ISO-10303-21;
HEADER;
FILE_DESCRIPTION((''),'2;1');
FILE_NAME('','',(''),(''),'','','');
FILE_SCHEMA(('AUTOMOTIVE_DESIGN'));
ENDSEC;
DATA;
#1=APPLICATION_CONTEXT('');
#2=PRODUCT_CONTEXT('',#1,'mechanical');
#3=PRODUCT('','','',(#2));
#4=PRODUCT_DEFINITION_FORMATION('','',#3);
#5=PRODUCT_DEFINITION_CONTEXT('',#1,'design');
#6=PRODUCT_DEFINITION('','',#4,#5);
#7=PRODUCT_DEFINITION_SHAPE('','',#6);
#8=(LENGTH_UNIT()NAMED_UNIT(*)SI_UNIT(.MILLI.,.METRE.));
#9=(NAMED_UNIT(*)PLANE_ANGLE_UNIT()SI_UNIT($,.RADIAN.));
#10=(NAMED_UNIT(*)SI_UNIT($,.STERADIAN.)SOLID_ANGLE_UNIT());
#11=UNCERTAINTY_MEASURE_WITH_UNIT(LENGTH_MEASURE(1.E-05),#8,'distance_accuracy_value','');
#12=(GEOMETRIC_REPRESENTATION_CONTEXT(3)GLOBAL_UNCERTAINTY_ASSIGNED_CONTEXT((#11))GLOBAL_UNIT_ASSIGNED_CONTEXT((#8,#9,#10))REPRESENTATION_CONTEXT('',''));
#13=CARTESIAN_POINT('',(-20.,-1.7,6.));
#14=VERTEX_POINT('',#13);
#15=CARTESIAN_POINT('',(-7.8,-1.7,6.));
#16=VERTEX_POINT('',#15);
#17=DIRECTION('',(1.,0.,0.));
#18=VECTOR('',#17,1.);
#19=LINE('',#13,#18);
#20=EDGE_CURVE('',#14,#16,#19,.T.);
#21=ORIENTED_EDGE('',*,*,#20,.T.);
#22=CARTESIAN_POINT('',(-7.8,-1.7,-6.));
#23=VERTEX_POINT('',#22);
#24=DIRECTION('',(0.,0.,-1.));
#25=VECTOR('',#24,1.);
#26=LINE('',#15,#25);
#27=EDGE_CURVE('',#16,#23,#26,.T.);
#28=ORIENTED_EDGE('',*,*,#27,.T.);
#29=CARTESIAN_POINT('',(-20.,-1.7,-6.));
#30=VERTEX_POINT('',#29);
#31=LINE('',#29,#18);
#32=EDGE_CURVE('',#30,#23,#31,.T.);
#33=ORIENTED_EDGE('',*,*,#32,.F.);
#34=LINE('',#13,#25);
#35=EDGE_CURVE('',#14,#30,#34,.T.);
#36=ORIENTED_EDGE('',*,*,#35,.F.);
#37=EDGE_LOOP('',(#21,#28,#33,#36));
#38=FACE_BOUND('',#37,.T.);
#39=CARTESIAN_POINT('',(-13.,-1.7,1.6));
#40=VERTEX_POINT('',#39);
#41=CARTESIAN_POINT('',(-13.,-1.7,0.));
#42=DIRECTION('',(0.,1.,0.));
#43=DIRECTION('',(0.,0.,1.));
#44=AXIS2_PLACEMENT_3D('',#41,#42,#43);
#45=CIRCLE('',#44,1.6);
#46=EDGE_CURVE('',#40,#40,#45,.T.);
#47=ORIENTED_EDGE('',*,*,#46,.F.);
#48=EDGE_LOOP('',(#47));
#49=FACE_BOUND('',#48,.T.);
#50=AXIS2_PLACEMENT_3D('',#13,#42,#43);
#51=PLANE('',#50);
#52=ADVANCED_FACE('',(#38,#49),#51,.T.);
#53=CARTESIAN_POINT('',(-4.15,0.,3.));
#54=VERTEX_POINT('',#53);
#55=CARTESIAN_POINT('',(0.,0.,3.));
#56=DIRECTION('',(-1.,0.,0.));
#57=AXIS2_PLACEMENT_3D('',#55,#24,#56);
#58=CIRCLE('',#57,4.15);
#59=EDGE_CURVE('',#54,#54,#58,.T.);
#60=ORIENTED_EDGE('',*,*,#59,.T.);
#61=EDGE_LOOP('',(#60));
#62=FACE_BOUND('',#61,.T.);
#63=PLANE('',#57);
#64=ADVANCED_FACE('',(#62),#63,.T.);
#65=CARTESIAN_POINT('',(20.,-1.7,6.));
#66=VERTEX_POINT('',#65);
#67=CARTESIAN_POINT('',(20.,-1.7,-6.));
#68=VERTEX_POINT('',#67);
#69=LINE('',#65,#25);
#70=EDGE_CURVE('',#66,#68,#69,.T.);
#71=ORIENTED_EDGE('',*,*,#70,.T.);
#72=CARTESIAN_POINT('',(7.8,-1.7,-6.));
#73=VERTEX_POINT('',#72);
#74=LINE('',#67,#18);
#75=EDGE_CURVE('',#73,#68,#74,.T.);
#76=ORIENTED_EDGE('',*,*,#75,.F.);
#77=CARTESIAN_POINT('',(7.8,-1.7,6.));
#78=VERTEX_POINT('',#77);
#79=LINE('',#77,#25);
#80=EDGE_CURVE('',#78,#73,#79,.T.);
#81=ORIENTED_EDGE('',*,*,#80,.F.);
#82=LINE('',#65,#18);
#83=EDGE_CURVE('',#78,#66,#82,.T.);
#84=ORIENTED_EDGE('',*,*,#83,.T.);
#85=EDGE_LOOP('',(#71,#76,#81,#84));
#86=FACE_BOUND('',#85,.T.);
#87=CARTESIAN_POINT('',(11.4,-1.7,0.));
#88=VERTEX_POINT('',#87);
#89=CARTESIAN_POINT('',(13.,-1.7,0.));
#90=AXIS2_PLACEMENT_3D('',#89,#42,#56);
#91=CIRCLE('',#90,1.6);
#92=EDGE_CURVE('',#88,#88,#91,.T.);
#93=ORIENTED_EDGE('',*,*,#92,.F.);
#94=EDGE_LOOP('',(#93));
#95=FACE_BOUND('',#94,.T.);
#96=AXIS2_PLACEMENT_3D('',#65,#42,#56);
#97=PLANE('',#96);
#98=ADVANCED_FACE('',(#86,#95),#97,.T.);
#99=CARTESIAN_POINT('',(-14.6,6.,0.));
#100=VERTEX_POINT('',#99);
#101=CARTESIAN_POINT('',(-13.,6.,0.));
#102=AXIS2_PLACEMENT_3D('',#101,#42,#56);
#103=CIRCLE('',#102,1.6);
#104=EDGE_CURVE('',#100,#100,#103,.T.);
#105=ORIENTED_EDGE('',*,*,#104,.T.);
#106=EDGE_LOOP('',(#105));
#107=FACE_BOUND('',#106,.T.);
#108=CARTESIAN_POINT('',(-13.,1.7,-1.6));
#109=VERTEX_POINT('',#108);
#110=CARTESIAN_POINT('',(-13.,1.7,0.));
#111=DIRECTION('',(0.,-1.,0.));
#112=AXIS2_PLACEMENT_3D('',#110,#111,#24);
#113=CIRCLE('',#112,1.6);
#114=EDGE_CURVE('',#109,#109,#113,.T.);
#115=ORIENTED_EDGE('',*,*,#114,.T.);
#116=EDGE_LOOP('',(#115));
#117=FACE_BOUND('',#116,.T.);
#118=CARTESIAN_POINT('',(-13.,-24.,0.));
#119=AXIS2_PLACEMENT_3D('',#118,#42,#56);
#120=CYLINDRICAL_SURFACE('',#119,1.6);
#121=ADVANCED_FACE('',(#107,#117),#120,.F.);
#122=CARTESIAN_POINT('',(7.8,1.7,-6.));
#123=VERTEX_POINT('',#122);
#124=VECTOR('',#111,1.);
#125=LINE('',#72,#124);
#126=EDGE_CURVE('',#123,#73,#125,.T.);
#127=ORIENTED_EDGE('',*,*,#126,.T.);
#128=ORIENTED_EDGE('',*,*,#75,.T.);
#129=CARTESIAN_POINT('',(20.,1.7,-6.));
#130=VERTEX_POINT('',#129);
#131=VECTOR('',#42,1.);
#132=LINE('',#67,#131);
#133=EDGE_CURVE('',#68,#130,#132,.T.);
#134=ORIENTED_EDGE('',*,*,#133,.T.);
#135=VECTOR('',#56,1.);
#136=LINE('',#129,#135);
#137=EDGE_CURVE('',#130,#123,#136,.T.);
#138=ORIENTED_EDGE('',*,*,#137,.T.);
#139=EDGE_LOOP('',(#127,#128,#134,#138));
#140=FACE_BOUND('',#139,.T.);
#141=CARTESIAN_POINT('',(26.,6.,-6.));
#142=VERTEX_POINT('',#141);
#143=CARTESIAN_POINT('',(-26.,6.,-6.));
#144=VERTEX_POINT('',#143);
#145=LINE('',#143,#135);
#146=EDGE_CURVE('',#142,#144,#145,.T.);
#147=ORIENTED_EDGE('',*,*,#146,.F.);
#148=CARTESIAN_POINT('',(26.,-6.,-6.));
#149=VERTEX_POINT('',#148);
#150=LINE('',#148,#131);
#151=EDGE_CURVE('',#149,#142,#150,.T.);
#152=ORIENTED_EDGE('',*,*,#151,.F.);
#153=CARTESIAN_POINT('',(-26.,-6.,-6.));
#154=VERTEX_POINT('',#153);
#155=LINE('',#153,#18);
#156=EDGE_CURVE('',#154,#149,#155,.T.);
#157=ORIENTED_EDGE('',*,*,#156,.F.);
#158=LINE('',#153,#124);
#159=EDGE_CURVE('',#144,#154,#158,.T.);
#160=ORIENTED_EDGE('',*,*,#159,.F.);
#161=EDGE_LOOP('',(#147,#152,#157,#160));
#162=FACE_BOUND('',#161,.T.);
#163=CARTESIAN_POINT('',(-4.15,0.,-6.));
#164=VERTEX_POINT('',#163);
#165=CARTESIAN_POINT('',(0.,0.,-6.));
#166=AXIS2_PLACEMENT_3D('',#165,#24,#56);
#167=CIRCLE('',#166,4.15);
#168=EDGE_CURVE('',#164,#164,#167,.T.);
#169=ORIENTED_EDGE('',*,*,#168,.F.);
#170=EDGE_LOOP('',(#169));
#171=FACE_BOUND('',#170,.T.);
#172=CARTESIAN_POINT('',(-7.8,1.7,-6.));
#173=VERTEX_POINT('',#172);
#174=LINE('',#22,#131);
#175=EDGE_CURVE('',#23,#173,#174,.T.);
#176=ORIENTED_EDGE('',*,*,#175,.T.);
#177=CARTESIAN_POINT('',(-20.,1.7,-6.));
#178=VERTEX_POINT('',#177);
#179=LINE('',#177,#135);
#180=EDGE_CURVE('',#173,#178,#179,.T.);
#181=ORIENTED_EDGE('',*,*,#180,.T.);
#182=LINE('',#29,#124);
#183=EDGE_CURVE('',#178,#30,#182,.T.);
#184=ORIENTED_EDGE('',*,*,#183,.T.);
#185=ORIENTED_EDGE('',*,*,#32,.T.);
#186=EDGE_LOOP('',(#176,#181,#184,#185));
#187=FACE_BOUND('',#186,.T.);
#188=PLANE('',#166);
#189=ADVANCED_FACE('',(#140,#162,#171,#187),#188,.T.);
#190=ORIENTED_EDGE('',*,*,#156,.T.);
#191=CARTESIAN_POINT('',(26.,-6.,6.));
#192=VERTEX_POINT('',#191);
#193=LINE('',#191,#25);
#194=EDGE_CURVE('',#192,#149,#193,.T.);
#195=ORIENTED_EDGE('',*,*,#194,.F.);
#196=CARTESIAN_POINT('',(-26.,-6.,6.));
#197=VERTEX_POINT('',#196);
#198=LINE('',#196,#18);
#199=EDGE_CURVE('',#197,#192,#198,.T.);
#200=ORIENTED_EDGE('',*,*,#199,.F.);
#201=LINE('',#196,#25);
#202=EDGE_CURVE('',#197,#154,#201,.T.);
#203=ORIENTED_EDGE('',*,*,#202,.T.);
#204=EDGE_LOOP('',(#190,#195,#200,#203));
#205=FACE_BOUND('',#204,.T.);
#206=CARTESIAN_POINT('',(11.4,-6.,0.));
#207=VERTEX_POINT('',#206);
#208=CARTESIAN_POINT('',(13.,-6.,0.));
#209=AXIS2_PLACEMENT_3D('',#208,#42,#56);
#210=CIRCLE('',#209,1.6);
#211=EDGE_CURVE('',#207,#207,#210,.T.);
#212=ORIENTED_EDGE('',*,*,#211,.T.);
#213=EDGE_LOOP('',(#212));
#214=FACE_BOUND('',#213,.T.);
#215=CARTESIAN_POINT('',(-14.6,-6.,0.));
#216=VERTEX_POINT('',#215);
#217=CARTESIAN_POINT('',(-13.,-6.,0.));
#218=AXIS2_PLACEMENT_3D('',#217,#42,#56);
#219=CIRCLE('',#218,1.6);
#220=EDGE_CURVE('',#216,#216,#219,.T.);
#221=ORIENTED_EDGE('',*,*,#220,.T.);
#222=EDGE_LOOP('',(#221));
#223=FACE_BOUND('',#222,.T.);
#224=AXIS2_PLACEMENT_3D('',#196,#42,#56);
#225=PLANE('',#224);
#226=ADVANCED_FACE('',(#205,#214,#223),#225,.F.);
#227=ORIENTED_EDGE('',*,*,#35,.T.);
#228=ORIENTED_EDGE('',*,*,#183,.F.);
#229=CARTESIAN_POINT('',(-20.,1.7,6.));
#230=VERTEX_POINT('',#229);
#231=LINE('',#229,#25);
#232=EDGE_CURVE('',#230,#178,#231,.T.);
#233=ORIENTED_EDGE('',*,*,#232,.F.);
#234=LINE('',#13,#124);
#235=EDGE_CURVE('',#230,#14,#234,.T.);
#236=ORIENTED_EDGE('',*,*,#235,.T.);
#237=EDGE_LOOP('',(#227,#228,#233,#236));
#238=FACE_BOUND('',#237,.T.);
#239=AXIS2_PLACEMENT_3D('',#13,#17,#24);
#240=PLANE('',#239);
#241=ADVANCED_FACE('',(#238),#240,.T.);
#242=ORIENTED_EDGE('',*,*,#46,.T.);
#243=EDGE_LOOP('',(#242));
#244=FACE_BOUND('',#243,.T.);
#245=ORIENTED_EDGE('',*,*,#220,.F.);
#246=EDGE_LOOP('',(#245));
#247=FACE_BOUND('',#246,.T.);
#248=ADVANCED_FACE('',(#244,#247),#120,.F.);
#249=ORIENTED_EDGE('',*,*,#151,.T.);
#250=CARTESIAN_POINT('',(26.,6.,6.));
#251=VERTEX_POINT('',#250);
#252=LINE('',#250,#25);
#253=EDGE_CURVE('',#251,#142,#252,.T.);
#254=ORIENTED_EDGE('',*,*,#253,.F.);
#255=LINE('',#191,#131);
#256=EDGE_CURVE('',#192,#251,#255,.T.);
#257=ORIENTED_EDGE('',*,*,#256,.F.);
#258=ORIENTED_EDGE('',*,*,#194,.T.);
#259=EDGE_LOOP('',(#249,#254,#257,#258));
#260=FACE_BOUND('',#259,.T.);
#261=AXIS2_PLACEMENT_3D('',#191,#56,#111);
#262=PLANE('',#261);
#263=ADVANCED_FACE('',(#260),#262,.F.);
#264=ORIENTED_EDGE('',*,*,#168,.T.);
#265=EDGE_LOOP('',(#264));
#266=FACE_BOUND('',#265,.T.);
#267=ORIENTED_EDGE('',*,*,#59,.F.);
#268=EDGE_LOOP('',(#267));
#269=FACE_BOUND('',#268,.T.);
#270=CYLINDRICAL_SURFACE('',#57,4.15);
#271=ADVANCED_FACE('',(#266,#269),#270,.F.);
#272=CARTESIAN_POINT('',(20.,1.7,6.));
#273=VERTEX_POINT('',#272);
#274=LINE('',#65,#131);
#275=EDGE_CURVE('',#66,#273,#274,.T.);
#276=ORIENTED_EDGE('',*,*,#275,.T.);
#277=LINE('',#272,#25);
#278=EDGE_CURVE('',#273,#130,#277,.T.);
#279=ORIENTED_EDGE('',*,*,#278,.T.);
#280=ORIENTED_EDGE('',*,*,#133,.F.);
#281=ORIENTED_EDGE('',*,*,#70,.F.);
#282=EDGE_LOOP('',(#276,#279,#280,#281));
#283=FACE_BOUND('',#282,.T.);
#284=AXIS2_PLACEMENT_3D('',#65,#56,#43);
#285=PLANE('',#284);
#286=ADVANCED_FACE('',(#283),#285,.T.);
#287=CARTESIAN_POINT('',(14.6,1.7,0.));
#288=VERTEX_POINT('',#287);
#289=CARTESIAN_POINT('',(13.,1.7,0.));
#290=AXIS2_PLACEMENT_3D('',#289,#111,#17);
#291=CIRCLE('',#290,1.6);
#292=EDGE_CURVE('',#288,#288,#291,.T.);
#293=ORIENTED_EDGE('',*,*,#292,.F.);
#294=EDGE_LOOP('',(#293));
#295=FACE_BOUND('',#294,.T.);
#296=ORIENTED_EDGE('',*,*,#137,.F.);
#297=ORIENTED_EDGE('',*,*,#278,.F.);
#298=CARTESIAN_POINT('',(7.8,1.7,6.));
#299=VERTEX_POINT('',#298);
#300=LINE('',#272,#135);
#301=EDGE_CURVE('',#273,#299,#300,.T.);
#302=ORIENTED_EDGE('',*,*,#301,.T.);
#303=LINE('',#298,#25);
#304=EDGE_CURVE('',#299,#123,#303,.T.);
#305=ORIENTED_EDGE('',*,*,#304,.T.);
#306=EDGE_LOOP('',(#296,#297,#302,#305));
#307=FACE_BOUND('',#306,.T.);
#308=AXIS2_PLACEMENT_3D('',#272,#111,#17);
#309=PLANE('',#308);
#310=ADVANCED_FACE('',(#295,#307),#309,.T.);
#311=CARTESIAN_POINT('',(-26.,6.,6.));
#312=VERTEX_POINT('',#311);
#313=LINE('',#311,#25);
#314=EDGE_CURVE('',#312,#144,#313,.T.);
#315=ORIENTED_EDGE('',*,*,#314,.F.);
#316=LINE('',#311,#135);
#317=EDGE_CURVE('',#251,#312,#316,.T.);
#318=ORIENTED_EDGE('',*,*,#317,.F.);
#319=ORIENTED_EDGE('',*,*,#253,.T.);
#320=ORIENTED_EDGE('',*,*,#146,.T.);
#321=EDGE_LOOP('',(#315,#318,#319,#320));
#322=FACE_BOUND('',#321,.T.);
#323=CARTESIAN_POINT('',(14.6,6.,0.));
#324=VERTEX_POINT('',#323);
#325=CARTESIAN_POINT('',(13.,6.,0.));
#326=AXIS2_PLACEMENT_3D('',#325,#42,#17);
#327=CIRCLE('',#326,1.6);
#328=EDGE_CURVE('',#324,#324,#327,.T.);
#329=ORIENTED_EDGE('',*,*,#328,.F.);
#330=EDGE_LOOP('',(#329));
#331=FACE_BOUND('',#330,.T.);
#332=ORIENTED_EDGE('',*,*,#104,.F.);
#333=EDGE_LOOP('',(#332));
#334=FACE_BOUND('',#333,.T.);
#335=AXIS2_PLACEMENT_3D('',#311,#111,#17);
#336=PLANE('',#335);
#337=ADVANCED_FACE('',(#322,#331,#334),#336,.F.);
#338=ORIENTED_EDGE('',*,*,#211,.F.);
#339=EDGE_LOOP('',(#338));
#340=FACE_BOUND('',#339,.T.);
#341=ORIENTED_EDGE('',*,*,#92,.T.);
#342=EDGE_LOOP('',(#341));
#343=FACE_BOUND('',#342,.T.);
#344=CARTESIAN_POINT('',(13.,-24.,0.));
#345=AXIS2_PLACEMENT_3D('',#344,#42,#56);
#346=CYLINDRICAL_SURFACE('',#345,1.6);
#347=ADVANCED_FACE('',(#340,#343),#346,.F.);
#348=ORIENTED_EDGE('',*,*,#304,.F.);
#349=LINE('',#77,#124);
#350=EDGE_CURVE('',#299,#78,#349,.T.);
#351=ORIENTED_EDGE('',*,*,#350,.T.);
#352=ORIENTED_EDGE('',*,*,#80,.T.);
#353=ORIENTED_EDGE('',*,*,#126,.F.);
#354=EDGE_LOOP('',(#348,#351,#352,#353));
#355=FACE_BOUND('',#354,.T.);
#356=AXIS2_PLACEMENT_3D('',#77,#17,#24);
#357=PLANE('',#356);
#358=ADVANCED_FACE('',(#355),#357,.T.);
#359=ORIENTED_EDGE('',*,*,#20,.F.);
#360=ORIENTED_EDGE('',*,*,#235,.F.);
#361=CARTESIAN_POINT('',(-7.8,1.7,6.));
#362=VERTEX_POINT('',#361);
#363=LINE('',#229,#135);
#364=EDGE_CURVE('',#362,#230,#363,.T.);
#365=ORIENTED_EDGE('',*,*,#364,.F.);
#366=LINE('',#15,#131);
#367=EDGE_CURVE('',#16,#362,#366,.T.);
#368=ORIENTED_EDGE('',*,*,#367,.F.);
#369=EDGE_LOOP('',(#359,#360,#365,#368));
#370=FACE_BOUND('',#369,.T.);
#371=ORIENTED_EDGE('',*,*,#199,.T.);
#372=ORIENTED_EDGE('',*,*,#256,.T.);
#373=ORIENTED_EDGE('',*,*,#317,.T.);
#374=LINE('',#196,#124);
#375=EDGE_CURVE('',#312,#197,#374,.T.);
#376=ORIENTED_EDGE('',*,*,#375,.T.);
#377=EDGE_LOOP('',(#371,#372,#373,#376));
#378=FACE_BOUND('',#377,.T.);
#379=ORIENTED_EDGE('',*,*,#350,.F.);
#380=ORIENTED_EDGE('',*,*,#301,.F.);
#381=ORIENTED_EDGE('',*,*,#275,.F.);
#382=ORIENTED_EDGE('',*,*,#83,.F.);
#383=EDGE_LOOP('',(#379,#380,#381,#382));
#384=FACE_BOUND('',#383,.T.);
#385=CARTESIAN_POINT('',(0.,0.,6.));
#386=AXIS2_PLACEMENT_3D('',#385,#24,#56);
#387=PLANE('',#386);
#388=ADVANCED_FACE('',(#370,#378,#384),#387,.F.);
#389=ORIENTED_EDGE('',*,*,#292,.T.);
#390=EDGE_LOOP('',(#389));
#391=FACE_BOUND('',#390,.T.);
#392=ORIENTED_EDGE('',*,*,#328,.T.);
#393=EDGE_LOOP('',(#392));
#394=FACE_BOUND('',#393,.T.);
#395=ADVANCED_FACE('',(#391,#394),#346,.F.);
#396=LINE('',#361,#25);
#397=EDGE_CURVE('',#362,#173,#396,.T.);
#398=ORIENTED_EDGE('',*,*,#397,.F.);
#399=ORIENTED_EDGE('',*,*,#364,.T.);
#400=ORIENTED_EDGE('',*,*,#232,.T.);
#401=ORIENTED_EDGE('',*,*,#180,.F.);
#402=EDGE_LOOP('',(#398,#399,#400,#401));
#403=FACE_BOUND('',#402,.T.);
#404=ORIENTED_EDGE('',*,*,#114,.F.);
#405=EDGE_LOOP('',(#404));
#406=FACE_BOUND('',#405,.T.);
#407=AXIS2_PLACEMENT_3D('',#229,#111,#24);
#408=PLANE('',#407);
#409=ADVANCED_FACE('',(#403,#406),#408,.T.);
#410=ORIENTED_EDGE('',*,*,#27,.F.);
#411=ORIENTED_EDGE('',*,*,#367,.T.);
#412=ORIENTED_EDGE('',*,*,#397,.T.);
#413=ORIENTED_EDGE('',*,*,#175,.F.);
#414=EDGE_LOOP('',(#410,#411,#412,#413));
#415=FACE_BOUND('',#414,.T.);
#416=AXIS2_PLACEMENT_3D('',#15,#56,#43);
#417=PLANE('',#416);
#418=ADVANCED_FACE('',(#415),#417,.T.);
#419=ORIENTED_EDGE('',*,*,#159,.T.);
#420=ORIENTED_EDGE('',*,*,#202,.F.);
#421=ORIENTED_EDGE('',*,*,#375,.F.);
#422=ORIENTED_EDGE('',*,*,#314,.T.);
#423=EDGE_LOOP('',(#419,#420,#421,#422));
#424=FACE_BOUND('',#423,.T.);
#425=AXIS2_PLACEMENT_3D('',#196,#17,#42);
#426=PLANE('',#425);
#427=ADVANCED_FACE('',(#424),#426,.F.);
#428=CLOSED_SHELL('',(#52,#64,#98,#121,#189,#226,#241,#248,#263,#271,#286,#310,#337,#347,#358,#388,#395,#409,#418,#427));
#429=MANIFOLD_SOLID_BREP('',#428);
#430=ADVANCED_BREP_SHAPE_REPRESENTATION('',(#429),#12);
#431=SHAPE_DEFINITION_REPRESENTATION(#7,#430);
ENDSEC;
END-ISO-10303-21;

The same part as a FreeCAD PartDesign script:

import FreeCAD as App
import Part
import Sketcher
from FreeCAD import Vector

doc = App.newDocument("Part")
body = doc.addObject("PartDesign::Body", "Body")

sketch1 = doc.addObject("Sketcher::SketchObject", "Sketch")
body.addObject(sketch1)
sketch1.AttachmentSupport = (doc.XY_Plane, [""])
sketch1.MapMode = "FlatFace"
sketch1.addGeometry(Part.LineSegment(Vector(-26, 6, 0), Vector(-26, -6, 0)), False)
sketch1.addGeometry(Part.LineSegment(Vector(-26, -6, 0), Vector(26, -6, 0)), False)
sketch1.addGeometry(Part.LineSegment(Vector(26, -6, 0), Vector(26, 6, 0)), False)
sketch1.addGeometry(Part.LineSegment(Vector(26, 6, 0), Vector(-26, 6, 0)), False)
sketch1.addGeometry(Part.LineSegment(Vector(-7.8, -1.7, 0), Vector(-20, -1.7, 0)), False)
sketch1.addGeometry(Part.LineSegment(Vector(-20, -1.7, 0), Vector(-20, 1.7, 0)), False)
sketch1.addGeometry(Part.LineSegment(Vector(-20, 1.7, 0), Vector(-7.8, 1.7, 0)), False)
sketch1.addGeometry(Part.LineSegment(Vector(-7.8, 1.7, 0), Vector(-7.8, -1.7, 0)), False)
sketch1.addGeometry(Part.LineSegment(Vector(20, -1.7, 0), Vector(7.8, -1.7, 0)), False)
sketch1.addGeometry(Part.LineSegment(Vector(7.8, -1.7, 0), Vector(7.8, 1.7, 0)), False)
sketch1.addGeometry(Part.LineSegment(Vector(7.8, 1.7, 0), Vector(20, 1.7, 0)), False)
sketch1.addGeometry(Part.LineSegment(Vector(20, 1.7, 0), Vector(20, -1.7, 0)), False)
sketch1.addConstraint(Sketcher.Constraint("Coincident", 0, 2, 1, 1))
sketch1.addConstraint(Sketcher.Constraint("Coincident", 1, 2, 2, 1))
sketch1.addConstraint(Sketcher.Constraint("Coincident", 2, 2, 3, 1))
sketch1.addConstraint(Sketcher.Constraint("Coincident", 3, 2, 0, 1))
sketch1.addConstraint(Sketcher.Constraint("Coincident", 4, 2, 5, 1))
sketch1.addConstraint(Sketcher.Constraint("Coincident", 5, 2, 6, 1))
sketch1.addConstraint(Sketcher.Constraint("Coincident", 6, 2, 7, 1))
sketch1.addConstraint(Sketcher.Constraint("Coincident", 7, 2, 4, 1))
sketch1.addConstraint(Sketcher.Constraint("Coincident", 8, 2, 9, 1))
sketch1.addConstraint(Sketcher.Constraint("Coincident", 9, 2, 10, 1))
sketch1.addConstraint(Sketcher.Constraint("Coincident", 10, 2, 11, 1))
sketch1.addConstraint(Sketcher.Constraint("Coincident", 11, 2, 8, 1))
sketch1.addConstraint(Sketcher.Constraint("Vertical", 0))
sketch1.addConstraint(Sketcher.Constraint("Horizontal", 1))
sketch1.addConstraint(Sketcher.Constraint("Vertical", 2))
sketch1.addConstraint(Sketcher.Constraint("Horizontal", 3))
sketch1.addConstraint(Sketcher.Constraint("Horizontal", 4))
sketch1.addConstraint(Sketcher.Constraint("Vertical", 5))
sketch1.addConstraint(Sketcher.Constraint("Horizontal", 6))
sketch1.addConstraint(Sketcher.Constraint("Vertical", 7))
sketch1.addConstraint(Sketcher.Constraint("Horizontal", 8))
sketch1.addConstraint(Sketcher.Constraint("Vertical", 9))
sketch1.addConstraint(Sketcher.Constraint("Horizontal", 10))
sketch1.addConstraint(Sketcher.Constraint("Vertical", 11))
sketch1.addConstraint(Sketcher.Constraint("Symmetric", 0, 2, 2, 2, -1, 1))
sketch1.addConstraint(Sketcher.Constraint("Symmetric", 6, 2, 8, 2, -1, 1))
sketch1.addConstraint(Sketcher.Constraint("Symmetric", 4, 2, 10, 2, -1, 1))
sketch1.addConstraint(Sketcher.Constraint("Horizontal", 7, 2, 8, 2))
sketch1.addConstraint(Sketcher.Constraint("DistanceX", 1, 1, 1, 2, 52.0))
sketch1.addConstraint(Sketcher.Constraint("DistanceY", 0, 2, 0, 1, 12.0))
sketch1.addConstraint(Sketcher.Constraint("DistanceX", 4, 2, 4, 1, 12.2))
sketch1.addConstraint(Sketcher.Constraint("DistanceY", 5, 1, 5, 2, 3.4))
sketch1.addConstraint(Sketcher.Constraint("DistanceX", 4, 2, -1, 1, 20.0))
pad1 = doc.addObject("PartDesign::Pad", "Pad")
body.addObject(pad1)
pad1.Profile = sketch1
pad1.Length = 12
pad1.Midplane = True

sketch2 = doc.addObject("Sketcher::SketchObject", "Sketch001")
body.addObject(sketch2)
sketch2.AttachmentSupport = (doc.XY_Plane, [""])
sketch2.MapMode = "FlatFace"
sketch2.AttachmentOffset = App.Placement(Vector(0, 0, -6), App.Rotation())
sketch2.addGeometry(Part.Circle(Vector(0, 0, 0), Vector(0, 0, 1), 4.2), False)
sketch2.addConstraint(Sketcher.Constraint("Coincident", 0, 3, -1, 1))
sketch2.addConstraint(Sketcher.Constraint("Diameter", 0, 8.3))
pocket1 = doc.addObject("PartDesign::Pocket", "Pocket")
body.addObject(pocket1)
pocket1.Profile = sketch2
pocket1.Length = 9
pocket1.Reversed = True

sketch3 = doc.addObject("Sketcher::SketchObject", "Sketch002")
body.addObject(sketch3)
sketch3.AttachmentSupport = (doc.XZ_Plane, [""])
sketch3.MapMode = "FlatFace"
sketch3.AttachmentOffset = App.Placement(Vector(0, 0, -6), App.Rotation())
sketch3.addGeometry(Part.Circle(Vector(-13, 0, 0), Vector(0, 0, 1), 1.6), False)
sketch3.addGeometry(Part.Circle(Vector(13, 0, 0), Vector(0, 0, 1), 1.6), False)
sketch3.addConstraint(Sketcher.Constraint("Equal", 0, 1))
sketch3.addConstraint(Sketcher.Constraint("Symmetric", 0, 3, 1, 3, -1, 1))
sketch3.addConstraint(Sketcher.Constraint("PointOnObject", 0, 3, -1))
sketch3.addConstraint(Sketcher.Constraint("Diameter", 0, 3.2))
sketch3.addConstraint(Sketcher.Constraint("DistanceX", 0, 3, -1, 1, 13.0))
pocket2 = doc.addObject("PartDesign::Pocket", "Pocket001")
body.addObject(pocket2)
pocket2.Profile = sketch3
pocket2.Length = 30
pocket2.Reversed = True

doc.recompute()
